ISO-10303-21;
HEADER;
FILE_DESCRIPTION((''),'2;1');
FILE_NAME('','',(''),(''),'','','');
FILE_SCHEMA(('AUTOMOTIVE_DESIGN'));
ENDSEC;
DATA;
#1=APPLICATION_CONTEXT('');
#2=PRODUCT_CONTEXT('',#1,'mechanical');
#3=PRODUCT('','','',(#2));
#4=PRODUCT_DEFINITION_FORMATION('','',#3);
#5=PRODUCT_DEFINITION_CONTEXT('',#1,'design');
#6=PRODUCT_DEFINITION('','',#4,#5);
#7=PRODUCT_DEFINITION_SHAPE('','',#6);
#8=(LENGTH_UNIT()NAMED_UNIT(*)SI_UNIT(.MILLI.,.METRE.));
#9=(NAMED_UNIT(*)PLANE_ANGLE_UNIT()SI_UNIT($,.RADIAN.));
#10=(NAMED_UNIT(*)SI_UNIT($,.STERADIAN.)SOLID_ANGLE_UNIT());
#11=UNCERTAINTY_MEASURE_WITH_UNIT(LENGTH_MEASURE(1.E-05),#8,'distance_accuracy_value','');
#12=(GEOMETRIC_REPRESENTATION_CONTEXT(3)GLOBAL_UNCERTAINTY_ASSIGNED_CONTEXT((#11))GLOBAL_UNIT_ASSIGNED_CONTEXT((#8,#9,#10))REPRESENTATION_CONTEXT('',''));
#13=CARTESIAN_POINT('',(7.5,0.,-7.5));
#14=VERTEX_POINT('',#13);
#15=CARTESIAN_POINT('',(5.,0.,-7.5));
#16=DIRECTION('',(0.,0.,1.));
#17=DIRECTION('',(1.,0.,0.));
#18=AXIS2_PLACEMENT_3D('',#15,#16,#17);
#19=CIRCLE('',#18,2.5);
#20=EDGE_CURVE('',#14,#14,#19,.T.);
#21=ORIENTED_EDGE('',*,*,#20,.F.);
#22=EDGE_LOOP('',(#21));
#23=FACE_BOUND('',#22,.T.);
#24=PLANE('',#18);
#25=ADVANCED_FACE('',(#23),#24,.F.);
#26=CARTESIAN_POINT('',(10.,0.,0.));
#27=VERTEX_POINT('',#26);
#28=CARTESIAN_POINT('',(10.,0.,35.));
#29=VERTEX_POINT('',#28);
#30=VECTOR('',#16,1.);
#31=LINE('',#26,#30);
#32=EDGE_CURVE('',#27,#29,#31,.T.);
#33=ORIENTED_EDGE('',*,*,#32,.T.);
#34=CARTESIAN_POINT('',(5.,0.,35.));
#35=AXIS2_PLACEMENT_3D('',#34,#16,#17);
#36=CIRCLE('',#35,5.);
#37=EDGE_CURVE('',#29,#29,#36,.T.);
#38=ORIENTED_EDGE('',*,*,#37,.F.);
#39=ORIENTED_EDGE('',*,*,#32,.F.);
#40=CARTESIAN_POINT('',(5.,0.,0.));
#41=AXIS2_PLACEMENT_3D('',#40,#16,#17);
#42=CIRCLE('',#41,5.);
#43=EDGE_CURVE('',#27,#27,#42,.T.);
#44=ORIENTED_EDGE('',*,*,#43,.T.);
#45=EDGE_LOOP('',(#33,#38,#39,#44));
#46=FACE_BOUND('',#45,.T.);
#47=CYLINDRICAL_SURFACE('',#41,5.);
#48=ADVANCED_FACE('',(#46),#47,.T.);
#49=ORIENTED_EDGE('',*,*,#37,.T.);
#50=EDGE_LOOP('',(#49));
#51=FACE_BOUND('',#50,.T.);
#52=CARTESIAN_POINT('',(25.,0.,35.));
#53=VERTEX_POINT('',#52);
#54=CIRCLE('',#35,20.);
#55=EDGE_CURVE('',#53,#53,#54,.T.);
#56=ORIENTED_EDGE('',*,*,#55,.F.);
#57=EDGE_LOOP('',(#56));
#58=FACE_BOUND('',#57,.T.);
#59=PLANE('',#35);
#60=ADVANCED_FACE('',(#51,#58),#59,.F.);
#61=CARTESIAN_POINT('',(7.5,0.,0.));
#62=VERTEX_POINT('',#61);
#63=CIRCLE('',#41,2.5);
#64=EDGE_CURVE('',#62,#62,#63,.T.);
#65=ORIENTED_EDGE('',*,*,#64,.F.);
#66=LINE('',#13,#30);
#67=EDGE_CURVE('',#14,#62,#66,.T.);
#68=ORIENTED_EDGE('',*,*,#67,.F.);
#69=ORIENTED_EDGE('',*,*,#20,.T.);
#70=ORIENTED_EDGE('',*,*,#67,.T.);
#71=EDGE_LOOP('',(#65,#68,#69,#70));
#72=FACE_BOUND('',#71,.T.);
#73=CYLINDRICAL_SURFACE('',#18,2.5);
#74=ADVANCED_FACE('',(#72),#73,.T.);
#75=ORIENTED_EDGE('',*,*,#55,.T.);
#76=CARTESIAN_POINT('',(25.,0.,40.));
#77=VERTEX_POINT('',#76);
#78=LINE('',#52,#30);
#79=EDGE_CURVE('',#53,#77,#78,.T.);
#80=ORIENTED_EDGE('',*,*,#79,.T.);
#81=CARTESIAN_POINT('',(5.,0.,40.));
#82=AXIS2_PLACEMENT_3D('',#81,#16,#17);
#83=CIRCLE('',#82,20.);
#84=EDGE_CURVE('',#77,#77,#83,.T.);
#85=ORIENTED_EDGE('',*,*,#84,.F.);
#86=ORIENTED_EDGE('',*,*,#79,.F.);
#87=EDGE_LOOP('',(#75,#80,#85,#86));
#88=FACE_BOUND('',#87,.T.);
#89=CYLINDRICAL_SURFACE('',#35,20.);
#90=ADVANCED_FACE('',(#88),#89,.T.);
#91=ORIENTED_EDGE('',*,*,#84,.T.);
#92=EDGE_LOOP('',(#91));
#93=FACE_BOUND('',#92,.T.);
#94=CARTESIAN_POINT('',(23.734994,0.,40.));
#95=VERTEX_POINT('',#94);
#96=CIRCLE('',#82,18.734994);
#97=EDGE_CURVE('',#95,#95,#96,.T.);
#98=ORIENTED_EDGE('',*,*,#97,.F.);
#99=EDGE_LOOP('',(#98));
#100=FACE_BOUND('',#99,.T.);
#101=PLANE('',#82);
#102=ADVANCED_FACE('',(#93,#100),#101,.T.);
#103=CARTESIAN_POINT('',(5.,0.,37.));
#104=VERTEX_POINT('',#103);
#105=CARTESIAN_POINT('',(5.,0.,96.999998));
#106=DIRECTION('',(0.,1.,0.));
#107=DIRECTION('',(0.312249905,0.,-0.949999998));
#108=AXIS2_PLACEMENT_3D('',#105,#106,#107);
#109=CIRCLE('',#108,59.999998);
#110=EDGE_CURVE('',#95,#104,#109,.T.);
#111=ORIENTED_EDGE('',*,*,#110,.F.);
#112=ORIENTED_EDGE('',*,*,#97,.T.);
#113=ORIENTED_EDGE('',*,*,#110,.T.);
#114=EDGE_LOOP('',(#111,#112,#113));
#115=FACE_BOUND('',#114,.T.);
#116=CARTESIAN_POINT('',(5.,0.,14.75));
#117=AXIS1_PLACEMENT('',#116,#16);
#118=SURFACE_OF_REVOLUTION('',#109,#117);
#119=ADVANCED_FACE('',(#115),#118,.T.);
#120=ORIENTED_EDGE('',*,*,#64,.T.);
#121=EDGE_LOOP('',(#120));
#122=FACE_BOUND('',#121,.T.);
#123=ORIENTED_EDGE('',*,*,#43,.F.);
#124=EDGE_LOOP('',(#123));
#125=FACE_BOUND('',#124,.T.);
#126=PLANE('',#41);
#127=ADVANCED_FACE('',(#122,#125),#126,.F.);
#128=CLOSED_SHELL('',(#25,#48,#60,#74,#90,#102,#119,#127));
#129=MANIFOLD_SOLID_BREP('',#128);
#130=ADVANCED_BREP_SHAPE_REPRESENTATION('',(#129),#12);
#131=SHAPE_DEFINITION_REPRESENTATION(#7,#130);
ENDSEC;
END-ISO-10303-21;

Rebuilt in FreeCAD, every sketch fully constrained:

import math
import FreeCAD as App
import Part
import Sketcher

V = App.Vector

doc = App.newDocument("Part")
body = doc.addObject("PartDesign::Body", "Body")

# Sketch on XZ plane
sketch1 = body.newObject("Sketcher::SketchObject", "Sketch")
sketch1.AttachmentSupport = (doc.getObject("XZ_Plane"), [""])
sketch1.MapMode = "FlatFace"
sketch1.addGeometry([
    Part.LineSegment(V(5, -7.5, 0), V(7.5, -7.5, 0)),  # 0
    Part.LineSegment(V(7.5, -7.5, 0), V(7.5, 0, 0)),  # 1
    Part.LineSegment(V(7.5, 0, 0), V(10, 0, 0)),  # 2
    Part.LineSegment(V(10, 0, 0), V(10, 35, 0)),  # 3
    Part.LineSegment(V(10, 35, 0), V(25, 35, 0)),  # 4
    Part.LineSegment(V(25, 35, 0), V(25, 40, 0)),  # 5
    Part.LineSegment(V(25, 40, 0), V(23.7, 40, 0)),  # 6
    Part.ArcOfCircle(Part.Circle(V(5, 97, 0), V(0, 0, 1), 60), math.radians(-90), math.radians(-71.81)),  # 7
    Part.LineSegment(V(5, 37, 0), V(5, -7.5, 0)),  # 8
], False)
sketch1.addGeometry(Part.LineSegment(V(5, -7.5, 0), V(5, 97, 0)), True)  # axis
sketch1.addConstraint([
    Sketcher.Constraint("Coincident", 0, 2, 1, 1),
    Sketcher.Constraint("Coincident", 1, 2, 2, 1),
    Sketcher.Constraint("Coincident", 2, 2, 3, 1),
    Sketcher.Constraint("Coincident", 3, 2, 4, 1),
    Sketcher.Constraint("Coincident", 4, 2, 5, 1),
    Sketcher.Constraint("Coincident", 5, 2, 6, 1),
    Sketcher.Constraint("Coincident", 6, 2, 7, 2),
    Sketcher.Constraint("Coincident", 7, 1, 8, 1),
    Sketcher.Constraint("Coincident", 8, 2, 0, 1),
    Sketcher.Constraint("Horizontal", 0),
    Sketcher.Constraint("Vertical", 1),
    Sketcher.Constraint("Horizontal", 2),
    Sketcher.Constraint("Vertical", 3),
    Sketcher.Constraint("Horizontal", 4),
    Sketcher.Constraint("Vertical", 5),
    Sketcher.Constraint("Horizontal", 6),
    Sketcher.Constraint("Vertical", 8),
    Sketcher.Constraint("Vertical", 9),
    Sketcher.Constraint("Coincident", 9, 1, 8, 2),
    Sketcher.Constraint("Coincident", 9, 2, 7, 3),
    Sketcher.Constraint("PointOnObject", 1, 2, -1),
    Sketcher.Constraint("Equal", 0, 2),
    Sketcher.Constraint("DistanceX", 4, 1, 4, 2, 15.0),
    Sketcher.Constraint("DistanceY", 3, 1, 3, 2, 35.0),
    Sketcher.Constraint("DistanceY", 5, 1, 5, 2, 5.0),
    Sketcher.Constraint("DistanceX", 0, 1, 0, 2, 2.5),
    Sketcher.Constraint("DistanceY", 1, 1, 1, 2, 7.5),
    Sketcher.Constraint("DistanceY", 8, 2, 8, 1, 44.5),
    Sketcher.Constraint("DistanceX", -1, 1, 7, 3, 5.0),
    Sketcher.Constraint("Radius", 7, 59.999998),
])
revolution = body.newObject("PartDesign::Revolution", "Revolution")
revolution.Profile = sketch1
revolution.ReferenceAxis = (sketch1, ["Axis0"])
revolution.Angle = 360

doc.recompute()
